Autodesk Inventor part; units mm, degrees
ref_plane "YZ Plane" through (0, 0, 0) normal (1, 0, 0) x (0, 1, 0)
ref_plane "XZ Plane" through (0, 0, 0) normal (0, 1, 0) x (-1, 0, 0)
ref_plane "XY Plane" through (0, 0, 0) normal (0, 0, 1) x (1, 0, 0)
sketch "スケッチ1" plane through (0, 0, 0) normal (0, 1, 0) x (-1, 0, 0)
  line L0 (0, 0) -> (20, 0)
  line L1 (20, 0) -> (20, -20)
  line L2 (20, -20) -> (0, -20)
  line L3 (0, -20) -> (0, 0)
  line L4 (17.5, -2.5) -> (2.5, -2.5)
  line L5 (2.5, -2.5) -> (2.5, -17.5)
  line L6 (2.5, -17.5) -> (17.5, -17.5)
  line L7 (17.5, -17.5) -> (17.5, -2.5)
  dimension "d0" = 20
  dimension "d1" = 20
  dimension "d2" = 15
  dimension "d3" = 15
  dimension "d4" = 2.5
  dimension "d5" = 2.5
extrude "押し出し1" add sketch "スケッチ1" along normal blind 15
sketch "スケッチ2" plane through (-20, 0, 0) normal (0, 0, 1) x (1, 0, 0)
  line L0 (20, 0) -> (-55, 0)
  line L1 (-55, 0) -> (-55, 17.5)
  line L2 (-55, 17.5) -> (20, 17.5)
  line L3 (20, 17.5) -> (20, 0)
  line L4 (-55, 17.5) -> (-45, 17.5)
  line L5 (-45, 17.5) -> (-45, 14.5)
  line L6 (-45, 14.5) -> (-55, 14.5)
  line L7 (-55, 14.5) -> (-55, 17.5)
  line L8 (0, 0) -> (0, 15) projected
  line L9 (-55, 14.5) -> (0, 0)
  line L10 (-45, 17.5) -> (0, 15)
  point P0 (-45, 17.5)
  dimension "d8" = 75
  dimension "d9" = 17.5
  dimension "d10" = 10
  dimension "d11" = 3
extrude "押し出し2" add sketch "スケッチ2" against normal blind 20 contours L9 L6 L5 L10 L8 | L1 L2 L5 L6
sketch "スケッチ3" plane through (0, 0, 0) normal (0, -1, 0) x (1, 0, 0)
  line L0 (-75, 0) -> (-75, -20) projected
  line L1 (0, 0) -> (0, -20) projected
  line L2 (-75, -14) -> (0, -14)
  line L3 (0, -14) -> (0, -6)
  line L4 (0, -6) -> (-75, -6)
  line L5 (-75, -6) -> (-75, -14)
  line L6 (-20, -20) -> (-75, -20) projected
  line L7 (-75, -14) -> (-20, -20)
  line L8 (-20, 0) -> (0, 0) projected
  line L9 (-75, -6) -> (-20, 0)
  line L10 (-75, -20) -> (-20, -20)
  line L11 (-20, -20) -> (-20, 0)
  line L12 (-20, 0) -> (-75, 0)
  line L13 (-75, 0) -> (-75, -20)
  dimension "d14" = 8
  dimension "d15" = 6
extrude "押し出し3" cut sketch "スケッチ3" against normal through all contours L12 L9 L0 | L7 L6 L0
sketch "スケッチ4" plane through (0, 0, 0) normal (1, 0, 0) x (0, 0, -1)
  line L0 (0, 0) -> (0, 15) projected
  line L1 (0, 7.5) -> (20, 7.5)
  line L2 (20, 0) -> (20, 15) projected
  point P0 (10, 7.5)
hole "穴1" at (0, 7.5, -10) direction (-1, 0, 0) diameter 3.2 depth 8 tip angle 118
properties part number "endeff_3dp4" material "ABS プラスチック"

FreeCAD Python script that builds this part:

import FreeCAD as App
import Part
import Sketcher
Q = App.Units.Quantity


def add_polygon(sketch, points):
    """Adds a closed chain of lines whose ends are joined by coincident constraints."""
    first, n = sketch.GeometryCount, len(points)
    for a, b in zip(points, points[1:] + points[:1]):
        sketch.addGeometry(Part.LineSegment(App.Vector(*a, 0), App.Vector(*b, 0)), False)
    for i in range(n):
        sketch.addConstraint(Sketcher.Constraint("Coincident", first + i, 2, first + (i + 1) % n, 1))

doc = App.newDocument("Part")
params = doc.addObject("Spreadsheet::Sheet", "Params")
for row, (alias, value) in enumerate([
    ("sketch1_width", "20 mm"),
    ("sketch1_width2", "15 mm"),
    ("pad1_length", "15 mm"),
    ("sketch2_width", "10 mm"),
    ("sketch2_height", "3 mm"),
    ("sketch2_height2", "15 mm"),
    ("pad2_length", "20 mm"),
    ("sketch3_height", "6 mm"),
    ("sketch3_width", "55 mm"),
    ("sketch4_diameter", "3.2 mm"),
    ("hole_diameter", "3.2 mm"),
    ("hole_depth", "8 mm"),
], start=1):
    params.set(f"A{row}", alias)
    params.set(f"B{row}", "=" + value)
    params.setAlias(f"B{row}", alias)

body = doc.addObject("PartDesign::Body", "Body")

# Sketch on XZ plane
sketch1 = doc.addObject("Sketcher::SketchObject", "Sketch")
body.addObject(sketch1)
sketch1.AttachmentSupport = (doc.XZ_Plane, [""])
sketch1.MapMode = "FlatFace"
add_polygon(sketch1, [(-20, 0), (0, 0), (0, -20), (-20, -20)])  # lines 0-3
add_polygon(sketch1, [(-2.5, -2.5), (-17.5, -2.5), (-17.5, -17.5), (-2.5, -17.5)])  # lines 4-7
sketch1.addConstraint([
    Sketcher.Constraint("Horizontal", 0),
    Sketcher.Constraint("Vertical", 1),
    Sketcher.Constraint("Horizontal", 2),
    Sketcher.Constraint("Vertical", 3),
    Sketcher.Constraint("Horizontal", 4),
    Sketcher.Constraint("Vertical", 5),
    Sketcher.Constraint("Horizontal", 6),
    Sketcher.Constraint("Vertical", 7),
    Sketcher.Constraint("Coincident", 0, 2, -1, 1),
    Sketcher.Constraint("Equal", 2, 1),
    Sketcher.Constraint("Equal", 6, 5),
    Sketcher.Constraint("DistanceX", 0, 1, 0, 2, Q("20 mm")),
    Sketcher.Constraint("DistanceX", 4, 2, 4, 1, Q("15 mm")),
    Sketcher.Constraint("DistanceY", 4, 2, -1, 1, Q("2.5 mm")),
    Sketcher.Constraint("DistanceX", 6, 2, -1, 1, Q("2.5 mm")),
])
sketch1.setExpression("Constraints[19]", "Params.sketch1_width")
sketch1.setExpression("Constraints[20]", "Params.sketch1_width2")
pad1 = doc.addObject("PartDesign::Pad", "Pad")
body.addObject(pad1)
pad1.Profile = sketch1
pad1.setExpression("Length", "Params.pad1_length")
pad1.Reversed = True

# Sketch on XY plane
sketch2 = doc.addObject("Sketcher::SketchObject", "Sketch001")
body.addObject(sketch2)
sketch2.AttachmentSupport = (doc.XY_Plane, [""])
sketch2.MapMode = "FlatFace"
add_polygon(sketch2, [(-75, 14.5), (-20, 0), (-20, 15), (-65, 17.5), (-75, 17.5)])  # lines 0-4
sketch2.addConstraint([
    Sketcher.Constraint("Vertical", 1),
    Sketcher.Constraint("Horizontal", 3),
    Sketcher.Constraint("Vertical", 4),
    Sketcher.Constraint("PointOnObject", 0, 2, -1),
    Sketcher.Constraint("DistanceX", 3, 2, 3, 1, Q("10 mm")),
    Sketcher.Constraint("DistanceY", 4, 2, 4, 1, Q("3 mm")),
    Sketcher.Constraint("DistanceX", 3, 2, -1, 1, Q("75 mm")),
    Sketcher.Constraint("DistanceY", -1, 1, 2, 2, Q("17.5 mm")),
    Sketcher.Constraint("DistanceY", 1, 1, 1, 2, Q("15 mm")),
    Sketcher.Constraint("DistanceX", 0, 2, -1, 1, Q("20 mm")),
])
sketch2.setExpression("Constraints[9]", "Params.sketch2_width")
sketch2.setExpression("Constraints[10]", "Params.sketch2_height")
sketch2.setExpression("Constraints[13]", "Params.sketch2_height2")
pad2 = doc.addObject("PartDesign::Pad", "Pad001")
body.addObject(pad2)
pad2.Profile = sketch2
pad2.setExpression("Length", "Params.pad2_length")
pad2.Reversed = True

# Sketch on XZ plane
sketch3 = doc.addObject("Sketcher::SketchObject", "Sketch002")
body.addObject(sketch3)
sketch3.AttachmentSupport = (doc.XZ_Plane, [""])
sketch3.MapMode = "FlatFace"
add_polygon(sketch3, [(-20, 0), (-75, 0), (-75, -6)])  # lines 0-2
add_polygon(sketch3, [(-20, -20), (-75, -14), (-75, -20)])  # lines 3-5
sketch3.addConstraint([
    Sketcher.Constraint("Horizontal", 0),
    Sketcher.Constraint("Vertical", 1),
    Sketcher.Constraint("Vertical", 4),
    Sketcher.Constraint("Horizontal", 5),
    Sketcher.Constraint("PointOnObject", 0, 2, -1),
    Sketcher.Constraint("Vertical", 1, 2, 3, 2),
    Sketcher.Constraint("Vertical", 2, 2, 5, 2),
    Sketcher.Constraint("Equal", 1, 4),
    Sketcher.Constraint("DistanceY", 1, 2, 1, 1, Q("6 mm")),
    Sketcher.Constraint("DistanceY", 3, 2, 1, 2, Q("8 mm")),
    Sketcher.Constraint("DistanceX", 0, 2, 0, 1, Q("55 mm")),
    Sketcher.Constraint("DistanceX", 0, 2, -1, 1, Q("75 mm")),
])
sketch3.setExpression("Constraints[14]", "Params.sketch3_height")
sketch3.setExpression("Constraints[16]", "Params.sketch3_width")
pocket1 = doc.addObject("PartDesign::Pocket", "Pocket")
body.addObject(pocket1)
pocket1.Profile = sketch3
pocket1.Type = "ThroughAll"

# Sketch on YZ plane
sketch4 = doc.addObject("Sketcher::SketchObject", "Sketch003")
body.addObject(sketch4)
sketch4.AttachmentSupport = (doc.YZ_Plane, [""])
sketch4.MapMode = "FlatFace"
sketch4.addGeometry(Part.Circle(App.Vector(7.5, -10, 0), App.Vector(0, 0, 1), 1.6), False)
sketch4.addConstraint([
    Sketcher.Constraint("Diameter", 0, Q("3.2 mm")),
    Sketcher.Constraint("DistanceY", 0, 3, -1, 1, Q("10 mm")),
    Sketcher.Constraint("DistanceX", -1, 1, 0, 3, Q("7.5 mm")),
])
sketch4.setExpression("Constraints[0]", "Params.sketch4_diameter")
doc.recompute()
hole = doc.addObject("PartDesign::Hole", "Hole")
body.addObject(hole)
hole.Profile = sketch4
hole.ThreadType = "None"
hole.setExpression("Diameter", "Params.hole_diameter")
hole.DepthType = "Dimension"
hole.setExpression("Depth", "Params.hole_depth")
hole.DrillPoint = "Angled"
hole.DrillPointAngle = 118

doc.recompute()
